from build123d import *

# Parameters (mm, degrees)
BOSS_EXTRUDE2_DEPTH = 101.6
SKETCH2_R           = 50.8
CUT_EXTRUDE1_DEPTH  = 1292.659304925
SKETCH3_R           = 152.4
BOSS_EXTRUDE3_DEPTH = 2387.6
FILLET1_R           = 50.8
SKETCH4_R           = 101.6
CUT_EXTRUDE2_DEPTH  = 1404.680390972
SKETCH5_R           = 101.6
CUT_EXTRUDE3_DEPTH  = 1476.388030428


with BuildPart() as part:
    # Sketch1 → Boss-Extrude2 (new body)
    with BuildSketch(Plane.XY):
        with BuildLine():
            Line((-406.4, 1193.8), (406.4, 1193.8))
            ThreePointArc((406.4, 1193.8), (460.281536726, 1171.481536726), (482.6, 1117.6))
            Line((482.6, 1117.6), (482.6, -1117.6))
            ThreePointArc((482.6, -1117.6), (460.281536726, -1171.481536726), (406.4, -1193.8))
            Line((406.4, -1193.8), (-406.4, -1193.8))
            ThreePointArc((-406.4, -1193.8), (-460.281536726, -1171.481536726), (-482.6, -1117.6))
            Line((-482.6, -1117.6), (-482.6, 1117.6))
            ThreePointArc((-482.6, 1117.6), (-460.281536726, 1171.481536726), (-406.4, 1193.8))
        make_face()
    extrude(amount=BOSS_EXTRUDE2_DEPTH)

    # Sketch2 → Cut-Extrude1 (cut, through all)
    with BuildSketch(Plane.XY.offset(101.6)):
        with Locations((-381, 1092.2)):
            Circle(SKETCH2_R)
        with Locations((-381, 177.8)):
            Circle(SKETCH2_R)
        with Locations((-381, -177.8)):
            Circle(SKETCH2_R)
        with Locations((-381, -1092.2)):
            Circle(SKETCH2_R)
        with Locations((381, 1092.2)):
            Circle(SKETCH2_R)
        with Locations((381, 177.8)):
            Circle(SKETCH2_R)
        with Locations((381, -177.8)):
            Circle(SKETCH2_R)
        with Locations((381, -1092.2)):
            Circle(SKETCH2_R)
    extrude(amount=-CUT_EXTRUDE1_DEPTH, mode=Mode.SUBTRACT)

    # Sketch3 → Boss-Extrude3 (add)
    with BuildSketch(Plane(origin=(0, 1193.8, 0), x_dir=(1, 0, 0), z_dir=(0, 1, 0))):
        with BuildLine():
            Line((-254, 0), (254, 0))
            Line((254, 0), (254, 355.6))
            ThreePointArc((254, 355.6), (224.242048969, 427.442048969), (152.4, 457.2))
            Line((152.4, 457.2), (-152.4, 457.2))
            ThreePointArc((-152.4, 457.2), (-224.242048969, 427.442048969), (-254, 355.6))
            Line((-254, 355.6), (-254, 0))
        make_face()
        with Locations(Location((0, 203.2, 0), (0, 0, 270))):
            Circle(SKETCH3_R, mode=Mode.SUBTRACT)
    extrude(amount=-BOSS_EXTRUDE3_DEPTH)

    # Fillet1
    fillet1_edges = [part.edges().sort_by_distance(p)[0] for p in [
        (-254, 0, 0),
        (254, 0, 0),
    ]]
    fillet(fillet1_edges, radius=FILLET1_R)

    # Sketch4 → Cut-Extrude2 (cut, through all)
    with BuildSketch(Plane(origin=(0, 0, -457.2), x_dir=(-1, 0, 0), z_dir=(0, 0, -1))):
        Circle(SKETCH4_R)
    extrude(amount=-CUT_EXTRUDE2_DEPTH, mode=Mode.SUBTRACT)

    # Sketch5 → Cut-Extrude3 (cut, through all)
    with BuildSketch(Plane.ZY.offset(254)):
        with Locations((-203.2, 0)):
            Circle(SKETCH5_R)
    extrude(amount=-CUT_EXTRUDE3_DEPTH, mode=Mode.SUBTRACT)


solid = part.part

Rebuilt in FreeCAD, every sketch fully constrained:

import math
import FreeCAD as App
import Part
import Sketcher
from FreeCAD import Vector
Q = App.Units.Quantity


def edges_at(feature, points):
    """Names of the edges that pass closest to the given points."""
    edges = feature.Shape.Edges
    near = lambda p: min(range(len(edges)), key=lambda i: edges[i].distToShape(Part.Vertex(*p))[0])
    return sorted({f"Edge{near(p) + 1}" for p in points})

doc = App.newDocument("Part")
params = doc.addObject("Spreadsheet::Sheet", "Params")
for row, (alias, value) in enumerate([
    ("sketch1_radius", "3 in"),
    ("sketch1_width", "32 in"),
    ("sketch1_height", "88 in"),
    ("pad1_length", "4 in"),
    ("sketch2_diameter", "4 in"),
    ("sketch3_diameter", "12 in"),
    ("sketch3_radius", "4 in"),
    ("sketch3_width", "20 in"),
    ("sketch3_height", "14 in"),
    ("pad2_length", "94 in"),
    ("fillet_radius", "2 in"),
    ("sketch4_diameter", "8 in"),
    ("sketch5_diameter", "8 in"),
], start=1):
    params.set(f"A{row}", alias)
    params.set(f"B{row}", "=" + value)
    params.setAlias(f"B{row}", alias)

body = doc.addObject("PartDesign::Body", "Body")

# Sketch on XY plane
sketch1 = body.newObject("Sketcher::SketchObject", "Sketch")
sketch1.AttachmentSupport = (doc.getObject("XY_Plane"), [""])
sketch1.MapMode = "FlatFace"
sketch1.addGeometry(Part.LineSegment(Vector(406, 1194, 0), Vector(-406, 1194, 0)), False)
sketch1.addGeometry(Part.ArcOfCircle(Part.Circle(Vector(-406, 1118, 0), Vector(0, 0, 1), 76), math.radians(90), math.radians(180)), False)
sketch1.addGeometry(Part.LineSegment(Vector(-483, 1118, 0), Vector(-483, -1118, 0)), False)
sketch1.addGeometry(Part.ArcOfCircle(Part.Circle(Vector(-406, -1118, 0), Vector(0, 0, 1), 76), math.radians(-180), math.radians(-90)), False)
sketch1.addGeometry(Part.LineSegment(Vector(-406, -1194, 0), Vector(406, -1194, 0)), False)
sketch1.addGeometry(Part.ArcOfCircle(Part.Circle(Vector(406, -1118, 0), Vector(0, 0, 1), 76), math.radians(-90), math.radians(0)), False)
sketch1.addGeometry(Part.LineSegment(Vector(483, -1118, 0), Vector(483, 1118, 0)), False)
sketch1.addGeometry(Part.ArcOfCircle(Part.Circle(Vector(406, 1118, 0), Vector(0, 0, 1), 76), math.radians(0), math.radians(90)), False)
sketch1.addConstraint(Sketcher.Constraint("Tangent", 0, 2, 1, 1))
sketch1.addConstraint(Sketcher.Constraint("Tangent", 1, 2, 2, 1))
sketch1.addConstraint(Sketcher.Constraint("Tangent", 2, 2, 3, 1))
sketch1.addConstraint(Sketcher.Constraint("Tangent", 3, 2, 4, 1))
sketch1.addConstraint(Sketcher.Constraint("Tangent", 4, 2, 5, 1))
sketch1.addConstraint(Sketcher.Constraint("Tangent", 5, 2, 6, 1))
sketch1.addConstraint(Sketcher.Constraint("Tangent", 6, 2, 7, 1))
sketch1.addConstraint(Sketcher.Constraint("Tangent", 7, 2, 0, 1))
sketch1.addConstraint(Sketcher.Constraint("Horizontal", 0))
sketch1.addConstraint(Sketcher.Constraint("Vertical", 2))
sketch1.addConstraint(Sketcher.Constraint("Horizontal", 4))
sketch1.addConstraint(Sketcher.Constraint("Vertical", 6))
sketch1.addConstraint(Sketcher.Constraint("Equal", 1, 3))
sketch1.addConstraint(Sketcher.Constraint("Equal", 3, 5))
sketch1.addConstraint(Sketcher.Constraint("Equal", 5, 7))
sketch1.addConstraint(Sketcher.Constraint("Symmetric", 1, 3, 5, 3, -1, 1))
sketch1.addConstraint(Sketcher.Constraint("Radius", 1, Q("3 in")))
sketch1.addConstraint(Sketcher.Constraint("DistanceX", 0, 2, 0, 1, Q("32 in")))
sketch1.addConstraint(Sketcher.Constraint("DistanceY", 2, 2, 2, 1, Q("88 in")))
sketch1.setExpression("Constraints[16]", "Params.sketch1_radius")
sketch1.setExpression("Constraints[17]", "Params.sketch1_width")
sketch1.setExpression("Constraints[18]", "Params.sketch1_height")
pad1 = body.newObject("PartDesign::Pad", "Pad")
pad1.Profile = sketch1
pad1.setExpression("Length", "Params.pad1_length")

# Sketch on XY plane
sketch2 = body.newObject("Sketcher::SketchObject", "Sketch001")
sketch2.AttachmentSupport = (doc.getObject("XY_Plane"), [""])
sketch2.MapMode = "FlatFace"
sketch2.AttachmentOffset = App.Placement(Vector(0, 0, 4 * 25.4), App.Rotation())
sketch2.addGeometry(Part.Circle(Vector(-381, 1092, 0), Vector(0, 0, 1), 51), False)
sketch2.addGeometry(Part.Circle(Vector(-381, 178, 0), Vector(0, 0, 1), 51), False)
sketch2.addGeometry(Part.Circle(Vector(-381, -178, 0), Vector(0, 0, 1), 51), False)
sketch2.addGeometry(Part.Circle(Vector(-381, -1092, 0), Vector(0, 0, 1), 51), False)
sketch2.addGeometry(Part.Circle(Vector(381, 1092, 0), Vector(0, 0, 1), 51), False)
sketch2.addGeometry(Part.Circle(Vector(381, 178, 0), Vector(0, 0, 1), 51), False)
sketch2.addGeometry(Part.Circle(Vector(381, -178, 0), Vector(0, 0, 1), 51), False)
sketch2.addGeometry(Part.Circle(Vector(381, -1092, 0), Vector(0, 0, 1), 51), False)
sketch2.addConstraint(Sketcher.Constraint("Equal", 0, 1))
sketch2.addConstraint(Sketcher.Constraint("Equal", 1, 2))
sketch2.addConstraint(Sketcher.Constraint("Equal", 2, 3))
sketch2.addConstraint(Sketcher.Constraint("Equal", 3, 4))
sketch2.addConstraint(Sketcher.Constraint("Equal", 4, 5))
sketch2.addConstraint(Sketcher.Constraint("Equal", 5, 6))
sketch2.addConstraint(Sketcher.Constraint("Equal", 6, 7))
sketch2.addConstraint(Sketcher.Constraint("Symmetric", 3, 3, 4, 3, -1, 1))
sketch2.addConstraint(Sketcher.Constraint("Symmetric", 2, 3, 5, 3, -1, 1))
sketch2.addConstraint(Sketcher.Constraint("Symmetric", 1, 3, 6, 3, -1, 1))
sketch2.addConstraint(Sketcher.Constraint("Symmetric", 0, 3, 7, 3, -1, 1))
sketch2.addConstraint(Sketcher.Constraint("Symmetric", 0, 3, 4, 3, -2))
sketch2.addConstraint(Sketcher.Constraint("Symmetric", 1, 3, 5, 3, -2))
sketch2.addConstraint(Sketcher.Constraint("Vertical", 0, 3, 1, 3))
sketch2.addConstraint(Sketcher.Constraint("Diameter", 0, Q("4 in")))
sketch2.addConstraint(Sketcher.Constraint("DistanceX", 0, 3, -1, 1, Q("15 in")))
sketch2.addConstraint(Sketcher.Constraint("DistanceY", -1, 1, 0, 3, Q("43 in")))
sketch2.addConstraint(Sketcher.Constraint("DistanceY", -1, 1, 1, 3, Q("7 in")))
sketch2.setExpression("Constraints[14]", "Params.sketch2_diameter")
pocket1 = body.newObject("PartDesign::Pocket", "Pocket")
pocket1.Profile = sketch2
pocket1.Type = "ThroughAll"

# Sketch on XZ plane
sketch3 = body.newObject("Sketcher::SketchObject", "Sketch002")
sketch3.AttachmentSupport = (doc.getObject("XZ_Plane"), [""])
sketch3.MapMode = "FlatFace"
sketch3.AttachmentOffset = App.Placement(Vector(0, 0, -47 * 25.4), App.Rotation())
sketch3.addGeometry(Part.LineSegment(Vector(-254, 0, 0), Vector(254, 0, 0)), False)
sketch3.addGeometry(Part.LineSegment(Vector(254, 0, 0), Vector(254, -356, 0)), False)
sketch3.addGeometry(Part.ArcOfCircle(Part.Circle(Vector(152, -356, 0), Vector(0, 0, 1), 102), math.radians(-90), math.radians(0)), False)
sketch3.addGeometry(Part.LineSegment(Vector(152, -457, 0), Vector(-152, -457, 0)), False)
sketch3.addGeometry(Part.ArcOfCircle(Part.Circle(Vector(-152, -356, 0), Vector(0, 0, 1), 102), math.radians(180), math.radians(270)), False)
sketch3.addGeometry(Part.LineSegment(Vector(-254, -356, 0), Vector(-254, 0, 0)), False)
sketch3.addGeometry(Part.Circle(Vector(0, -203, 0), Vector(0, 0, 1), 152), False)
sketch3.addConstraint(Sketcher.Constraint("Coincident", 0, 2, 1, 1))
sketch3.addConstraint(Sketcher.Constraint("Tangent", 1, 2, 2, 2))
sketch3.addConstraint(Sketcher.Constraint("Tangent", 2, 1, 3, 1))
sketch3.addConstraint(Sketcher.Constraint("Tangent", 3, 2, 4, 2))
sketch3.addConstraint(Sketcher.Constraint("Tangent", 4, 1, 5, 1))
sketch3.addConstraint(Sketcher.Constraint("Coincident", 5, 2, 0, 1))
sketch3.addConstraint(Sketcher.Constraint("Horizontal", 0))
sketch3.addConstraint(Sketcher.Constraint("Vertical", 1))
sketch3.addConstraint(Sketcher.Constraint("Horizontal", 3))
sketch3.addConstraint(Sketcher.Constraint("Vertical", 5))
sketch3.addConstraint(Sketcher.Constraint("Equal", 2, 4))
sketch3.addConstraint(Sketcher.Constraint("Symmetric", 0, 2, 5, 2, -1, 1))
sketch3.addConstraint(Sketcher.Constraint("PointOnObject", 6, 3, -2))
sketch3.addConstraint(Sketcher.Constraint("Diameter", 6, Q("12 in")))
sketch3.addConstraint(Sketcher.Constraint("Radius", 2, Q("4 in")))
sketch3.addConstraint(Sketcher.Constraint("DistanceX", 0, 1, 0, 2, Q("20 in")))
sketch3.addConstraint(Sketcher.Constraint("DistanceY", 1, 2, 1, 1, Q("14 in")))
sketch3.addConstraint(Sketcher.Constraint("DistanceY", 6, 3, -1, 1, Q("8 in")))
sketch3.setExpression("Constraints[13]", "Params.sketch3_diameter")
sketch3.setExpression("Constraints[14]", "Params.sketch3_radius")
sketch3.setExpression("Constraints[15]", "Params.sketch3_width")
sketch3.setExpression("Constraints[16]", "Params.sketch3_height")
pad2 = body.newObject("PartDesign::Pad", "Pad001")
pad2.Profile = sketch3
pad2.setExpression("Length", "Params.pad2_length")
doc.recompute()

fillet = body.newObject("PartDesign::Fillet", "Fillet")
fillet.Base = (pad2, edges_at(pad2, [(-254, 0, 0), (254, 0, 0)]))
fillet.setExpression("Radius", "Params.fillet_radius")

# Sketch on XY plane
sketch4 = body.newObject("Sketcher::SketchObject", "Sketch003")
sketch4.AttachmentSupport = (doc.getObject("XY_Plane"), [""])
sketch4.MapMode = "FlatFace"
sketch4.AttachmentOffset = App.Placement(Vector(0, 0, -18 * 25.4), App.Rotation())
sketch4.addGeometry(Part.Circle(Vector(0, 0, 0), Vector(0, 0, 1), 102), False)
sketch4.addConstraint(Sketcher.Constraint("Coincident", 0, 3, -1, 1))
sketch4.addConstraint(Sketcher.Constraint("Diameter", 0, Q("8 in")))
sketch4.setExpression("Constraints[1]", "Params.sketch4_diameter")
pocket2 = body.newObject("PartDesign::Pocket", "Pocket001")
pocket2.Profile = sketch4
pocket2.Type = "ThroughAll"
pocket2.Reversed = True

# Sketch on YZ plane
sketch5 = body.newObject("Sketcher::SketchObject", "Sketch004")
sketch5.AttachmentSupport = (doc.getObject("YZ_Plane"), [""])
sketch5.MapMode = "FlatFace"
sketch5.AttachmentOffset = App.Placement(Vector(0, 0, -10 * 25.4), App.Rotation())
sketch5.addGeometry(Part.Circle(Vector(0, -203, 0), Vector(0, 0, 1), 102), False)
sketch5.addConstraint(Sketcher.Constraint("PointOnObject", 0, 3, -2))
sketch5.addConstraint(Sketcher.Constraint("Diameter", 0, Q("8 in")))
sketch5.addConstraint(Sketcher.Constraint("DistanceY", 0, 3, -1, 1, Q("8 in")))
sketch5.setExpression("Constraints[1]", "Params.sketch5_diameter")
pocket3 = body.newObject("PartDesign::Pocket", "Pocket002")
pocket3.Profile = sketch5
pocket3.Type = "ThroughAll"
pocket3.Reversed = True

doc.recompute()
